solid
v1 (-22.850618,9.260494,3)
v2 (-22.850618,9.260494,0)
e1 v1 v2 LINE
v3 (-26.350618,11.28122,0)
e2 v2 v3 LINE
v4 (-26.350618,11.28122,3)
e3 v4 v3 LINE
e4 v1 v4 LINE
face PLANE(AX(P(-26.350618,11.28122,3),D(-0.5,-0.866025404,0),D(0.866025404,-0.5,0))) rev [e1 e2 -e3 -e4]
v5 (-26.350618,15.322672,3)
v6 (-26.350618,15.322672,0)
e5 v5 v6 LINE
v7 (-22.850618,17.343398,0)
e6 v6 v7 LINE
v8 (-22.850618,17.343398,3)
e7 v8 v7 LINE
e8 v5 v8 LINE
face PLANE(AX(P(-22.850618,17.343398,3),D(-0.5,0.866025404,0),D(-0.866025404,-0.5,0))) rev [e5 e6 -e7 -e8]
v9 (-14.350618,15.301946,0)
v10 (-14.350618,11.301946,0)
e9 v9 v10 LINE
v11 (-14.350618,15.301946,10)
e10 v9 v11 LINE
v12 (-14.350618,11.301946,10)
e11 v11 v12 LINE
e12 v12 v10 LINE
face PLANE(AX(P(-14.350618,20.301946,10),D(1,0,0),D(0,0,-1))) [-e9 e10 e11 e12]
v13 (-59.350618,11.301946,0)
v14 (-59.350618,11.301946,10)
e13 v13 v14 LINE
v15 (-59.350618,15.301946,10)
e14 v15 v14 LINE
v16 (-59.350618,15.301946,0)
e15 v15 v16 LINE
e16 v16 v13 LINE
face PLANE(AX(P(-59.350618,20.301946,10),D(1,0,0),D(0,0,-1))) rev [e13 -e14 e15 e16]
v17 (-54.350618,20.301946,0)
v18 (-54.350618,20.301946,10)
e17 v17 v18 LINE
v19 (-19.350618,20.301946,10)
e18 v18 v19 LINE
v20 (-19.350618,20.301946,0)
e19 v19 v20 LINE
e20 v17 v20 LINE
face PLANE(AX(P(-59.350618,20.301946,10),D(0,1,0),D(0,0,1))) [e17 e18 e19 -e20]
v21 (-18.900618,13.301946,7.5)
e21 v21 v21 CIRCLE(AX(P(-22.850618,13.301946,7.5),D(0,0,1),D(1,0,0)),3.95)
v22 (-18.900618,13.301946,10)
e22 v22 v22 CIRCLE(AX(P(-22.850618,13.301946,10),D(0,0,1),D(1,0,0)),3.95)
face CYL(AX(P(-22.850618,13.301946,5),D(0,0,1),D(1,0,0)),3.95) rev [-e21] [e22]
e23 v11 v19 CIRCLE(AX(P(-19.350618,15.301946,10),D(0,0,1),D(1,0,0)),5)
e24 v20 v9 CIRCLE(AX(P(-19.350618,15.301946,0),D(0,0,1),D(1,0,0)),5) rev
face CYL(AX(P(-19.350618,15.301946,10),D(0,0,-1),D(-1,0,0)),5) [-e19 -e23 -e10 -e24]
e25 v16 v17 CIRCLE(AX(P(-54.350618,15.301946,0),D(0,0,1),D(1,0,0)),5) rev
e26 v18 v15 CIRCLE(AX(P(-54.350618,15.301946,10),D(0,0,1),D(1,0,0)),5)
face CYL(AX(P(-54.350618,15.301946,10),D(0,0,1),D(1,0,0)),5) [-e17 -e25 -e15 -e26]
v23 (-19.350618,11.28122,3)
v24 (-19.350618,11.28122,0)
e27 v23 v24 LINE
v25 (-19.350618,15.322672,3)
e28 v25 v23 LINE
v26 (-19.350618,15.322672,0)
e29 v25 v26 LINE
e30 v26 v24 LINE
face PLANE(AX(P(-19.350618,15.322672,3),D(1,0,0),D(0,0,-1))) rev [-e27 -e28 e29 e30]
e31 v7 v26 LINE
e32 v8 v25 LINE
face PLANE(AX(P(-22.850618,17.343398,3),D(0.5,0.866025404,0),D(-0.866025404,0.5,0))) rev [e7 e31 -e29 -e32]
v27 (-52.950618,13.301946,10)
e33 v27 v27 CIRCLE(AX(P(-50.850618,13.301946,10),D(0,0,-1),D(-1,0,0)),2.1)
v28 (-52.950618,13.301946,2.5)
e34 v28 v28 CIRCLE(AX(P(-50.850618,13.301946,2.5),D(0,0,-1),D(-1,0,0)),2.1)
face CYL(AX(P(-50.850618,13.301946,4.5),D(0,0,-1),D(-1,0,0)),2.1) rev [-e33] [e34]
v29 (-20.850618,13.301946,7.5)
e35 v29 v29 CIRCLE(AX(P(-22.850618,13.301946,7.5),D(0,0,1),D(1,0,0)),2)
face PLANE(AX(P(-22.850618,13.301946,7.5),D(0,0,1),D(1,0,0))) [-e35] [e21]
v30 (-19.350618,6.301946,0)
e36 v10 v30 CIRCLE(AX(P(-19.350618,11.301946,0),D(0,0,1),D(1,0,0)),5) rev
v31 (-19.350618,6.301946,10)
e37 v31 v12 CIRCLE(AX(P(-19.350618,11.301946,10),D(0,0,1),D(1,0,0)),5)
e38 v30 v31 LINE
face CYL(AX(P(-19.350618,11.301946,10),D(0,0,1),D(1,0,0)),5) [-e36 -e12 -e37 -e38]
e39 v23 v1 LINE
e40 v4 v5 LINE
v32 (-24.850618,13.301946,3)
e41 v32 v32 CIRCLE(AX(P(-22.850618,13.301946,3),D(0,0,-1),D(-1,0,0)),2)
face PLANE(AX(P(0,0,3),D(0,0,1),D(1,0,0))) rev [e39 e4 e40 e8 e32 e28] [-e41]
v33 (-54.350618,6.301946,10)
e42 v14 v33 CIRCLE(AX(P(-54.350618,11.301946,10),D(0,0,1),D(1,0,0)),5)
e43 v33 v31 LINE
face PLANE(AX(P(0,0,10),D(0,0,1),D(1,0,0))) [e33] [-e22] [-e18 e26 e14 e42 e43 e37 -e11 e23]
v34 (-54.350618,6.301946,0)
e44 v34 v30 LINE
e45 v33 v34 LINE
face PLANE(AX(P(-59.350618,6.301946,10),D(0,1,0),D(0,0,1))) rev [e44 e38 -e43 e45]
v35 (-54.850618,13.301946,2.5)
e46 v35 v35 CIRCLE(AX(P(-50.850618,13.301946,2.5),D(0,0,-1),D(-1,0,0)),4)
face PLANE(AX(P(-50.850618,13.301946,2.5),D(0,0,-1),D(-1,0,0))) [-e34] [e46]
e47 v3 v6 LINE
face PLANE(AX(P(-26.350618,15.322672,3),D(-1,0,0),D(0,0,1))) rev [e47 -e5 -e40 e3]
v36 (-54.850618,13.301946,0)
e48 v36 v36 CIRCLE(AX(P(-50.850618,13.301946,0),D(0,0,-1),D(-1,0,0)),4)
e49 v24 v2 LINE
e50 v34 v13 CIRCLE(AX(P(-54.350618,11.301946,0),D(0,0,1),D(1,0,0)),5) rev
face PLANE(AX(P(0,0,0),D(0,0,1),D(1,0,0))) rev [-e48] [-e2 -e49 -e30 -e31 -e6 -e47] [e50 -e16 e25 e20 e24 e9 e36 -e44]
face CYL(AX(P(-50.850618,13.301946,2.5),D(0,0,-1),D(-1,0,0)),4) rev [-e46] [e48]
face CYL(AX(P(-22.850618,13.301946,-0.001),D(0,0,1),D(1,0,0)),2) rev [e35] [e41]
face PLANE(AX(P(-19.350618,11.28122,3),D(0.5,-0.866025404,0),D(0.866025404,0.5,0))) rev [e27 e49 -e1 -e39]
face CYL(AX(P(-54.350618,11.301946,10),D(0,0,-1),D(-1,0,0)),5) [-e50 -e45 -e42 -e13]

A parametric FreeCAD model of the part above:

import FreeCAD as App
import Part
import Sketcher

V = App.Vector
Q = App.Units.Quantity


def edges_at(feature, points):
    """Names of the edges that pass closest to the given points."""
    edges = feature.Shape.Edges
    near = lambda p: min(range(len(edges)), key=lambda i: edges[i].distToShape(Part.Vertex(*p))[0])
    return sorted({f"Edge{near(p) + 1}" for p in points})

doc = App.newDocument("Part")
body = doc.addObject("PartDesign::Body", "Body")

sketch1 = body.newObject("Sketcher::SketchObject", "Sketch")
sketch1.AttachmentSupport = (doc.getObject("XY_Plane"), [""])
sketch1.MapMode = "FlatFace"
sketch1.addGeometry(Part.LineSegment(V(-59, 20, 0), V(-59, 6, 0)), False)
sketch1.addGeometry(Part.LineSegment(V(-59, 6, 0), V(-14, 6, 0)), False)
sketch1.addGeometry(Part.LineSegment(V(-14, 6, 0), V(-14, 20, 0)), False)
sketch1.addGeometry(Part.LineSegment(V(-14, 20, 0), V(-59, 20, 0)), False)
sketch1.addConstraint(Sketcher.Constraint("Coincident", 0, 2, 1, 1))
sketch1.addConstraint(Sketcher.Constraint("Coincident", 1, 2, 2, 1))
sketch1.addConstraint(Sketcher.Constraint("Coincident", 2, 2, 3, 1))
sketch1.addConstraint(Sketcher.Constraint("Coincident", 3, 2, 0, 1))
sketch1.addConstraint(Sketcher.Constraint("Vertical", 0))
sketch1.addConstraint(Sketcher.Constraint("Horizontal", 1))
sketch1.addConstraint(Sketcher.Constraint("Vertical", 2))
sketch1.addConstraint(Sketcher.Constraint("Horizontal", 3))
sketch1.addConstraint(Sketcher.Constraint("DistanceX", 1, 1, 1, 2, 45.0))
sketch1.addConstraint(Sketcher.Constraint("DistanceY", 0, 2, 0, 1, 14.0))
sketch1.addConstraint(Sketcher.Constraint("DistanceX", 0, 2, -1, 1, 59.350618))
sketch1.addConstraint(Sketcher.Constraint("DistanceY", -1, 1, 0, 2, 6.301946))
pad1 = body.newObject("PartDesign::Pad", "Pad")
pad1.Profile = sketch1
pad1.Length = 10
doc.recompute()

fillet = body.newObject("PartDesign::Fillet", "Fillet")
fillet.Base = (pad1, edges_at(pad1, [(-59.351, 20.302, 5)]))
fillet.Radius = 5
doc.recompute()

fillet2 = body.newObject("PartDesign::Fillet", "Fillet001")
fillet2.Base = (fillet, edges_at(fillet, [(-14.351, 20.302, 5), (-14.351, 6.302, 5), (-59.351, 6.302, 5)]))
fillet2.Radius = 5

sketch2 = body.newObject("Sketcher::SketchObject", "Sketch001")
sketch2.AttachmentSupport = (doc.getObject("XY_Plane"), [""])
sketch2.MapMode = "FlatFace"
sketch2.addGeometry(Part.Circle(V(-50.9, 13.3, 0), V(0, 0, 1), 4), False)
sketch2.addConstraint(Sketcher.Constraint("Diameter", 0, 8.0))
sketch2.addConstraint(Sketcher.Constraint("DistanceX", 0, 3, -1, 1, 50.850618))
sketch2.addConstraint(Sketcher.Constraint("DistanceY", -1, 1, 0, 3, 13.301946))
pocket1 = body.newObject("PartDesign::Pocket", "Pocket")
pocket1.Profile = sketch2
pocket1.Length = 2.5
pocket1.Reversed = True

sketch3 = body.newObject("Sketcher::SketchObject", "Sketch002")
sketch3.AttachmentSupport = (doc.getObject("XY_Plane"), [""])
sketch3.MapMode = "FlatFace"
sketch3.AttachmentOffset = App.Placement(V(0, 0, 2.5), App.Rotation())
sketch3.addGeometry(Part.Circle(V(-50.9, 13.3, 0), V(0, 0, 1), 2.1), False)
sketch3.addConstraint(Sketcher.Constraint("Diameter", 0, 4.2))
sketch3.addConstraint(Sketcher.Constraint("DistanceX", 0, 3, -1, 1, 50.850618))
sketch3.addConstraint(Sketcher.Constraint("DistanceY", -1, 1, 0, 3, 13.301946))
pocket2 = body.newObject("PartDesign::Pocket", "Pocket001")
pocket2.Profile = sketch3
pocket2.Length = 2
pocket2.Reversed = True

sketch4 = body.newObject("Sketcher::SketchObject", "Sketch003")
sketch4.AttachmentSupport = (doc.getObject("XY_Plane"), [""])
sketch4.MapMode = "FlatFace"
sketch4.AttachmentOffset = App.Placement(V(0, 0, 10), App.Rotation())
sketch4.addGeometry(Part.Circle(V(-22.9, 13.3, 0), V(0, 0, 1), 4), False)
sketch4.addConstraint(Sketcher.Constraint("Diameter", 0, 7.9))
sketch4.addConstraint(Sketcher.Constraint("DistanceX", 0, 3, -1, 1, 22.850618))
sketch4.addConstraint(Sketcher.Constraint("DistanceY", -1, 1, 0, 3, 13.301946))
pocket3 = body.newObject("PartDesign::Pocket", "Pocket002")
pocket3.Profile = sketch4
pocket3.Length = 5

sketch5 = body.newObject("Sketcher::SketchObject", "Sketch004")
sketch5.AttachmentSupport = (doc.getObject("XY_Plane"), [""])
sketch5.MapMode = "FlatFace"
sketch5.AttachmentOffset = App.Placement(V(0, 0, 5), App.Rotation())
sketch5.addGeometry(Part.Circle(V(-22.9, 13.3, 0), V(0, 0, 1), 2), False)
sketch5.addConstraint(Sketcher.Constraint("Diameter", 0, 4.0))
sketch5.addConstraint(Sketcher.Constraint("DistanceX", 0, 3, -1, 1, 22.850618))
sketch5.addConstraint(Sketcher.Constraint("DistanceY", -1, 1, 0, 3, 13.301946))
pocket4 = body.newObject("PartDesign::Pocket", "Pocket003")
pocket4.Profile = sketch5
pocket4.Type = "UpToFirst"

sketch6 = body.newObject("Sketcher::SketchObject", "Sketch005")
sketch6.AttachmentSupport = (doc.getObject("XY_Plane"), [""])
sketch6.MapMode = "FlatFace"
sketch6.AttachmentOffset = App.Placement(V(0, 0, 4.5), App.Rotation())
sketch6.addGeometry(Part.Circle(V(-50.9, 13.3, 0), V(0, 0, 1), 2.1), False)
sketch6.addConstraint(Sketcher.Constraint("Diameter", 0, 4.2))
sketch6.addConstraint(Sketcher.Constraint("DistanceX", 0, 3, -1, 1, 50.850618))
sketch6.addConstraint(Sketcher.Constraint("DistanceY", -1, 1, 0, 3, 13.301946))
pocket5 = body.newObject("PartDesign::Pocket", "Pocket004")
pocket5.Profile = sketch6
pocket5.Type = "ThroughAll"
pocket5.Reversed = True

sketch7 = body.newObject("Sketcher::SketchObject", "Sketch006")
sketch7.AttachmentSupport = (doc.getObject("XY_Plane"), [""])
sketch7.MapMode = "FlatFace"
sketch7.AttachmentOffset = App.Placement(V(0, 0, 7.5), App.Rotation())
sketch7.addGeometry(Part.Circle(V(-22.9, 13.3, 0), V(0, 0, 1), 4), False)
sketch7.addGeometry(Part.Circle(V(-22.9, 13.3, 0), V(0, 0, 1), 2), False)
sketch7.addConstraint(Sketcher.Constraint("Coincident", 1, 3, 0, 3))
sketch7.addConstraint(Sketcher.Constraint("Diameter", 1, 4.0))
sketch7.addConstraint(Sketcher.Constraint("Diameter", 0, 7.9))
sketch7.addConstraint(Sketcher.Constraint("DistanceX", 0, 3, -1, 1, 22.850618))
sketch7.addConstraint(Sketcher.Constraint("DistanceY", -1, 1, 0, 3, 13.301946))
pad2 = body.newObject("PartDesign::Pad", "Pad001")
pad2.Profile = sketch7
pad2.Length = 2.5
pad2.Reversed = True

sketch8 = body.newObject("Sketcher::SketchObject", "Sketch007")
sketch8.AttachmentSupport = (doc.getObject("XY_Plane"), [""])
sketch8.MapMode = "FlatFace"
sketch8.AttachmentOffset = App.Placement(V(0, 0, 3), App.Rotation())
sketch8.addGeometry(Part.LineSegment(V(-22.9, 17.3, 0), V(-19.4, 15.3, 0)), False)
sketch8.addGeometry(Part.LineSegment(V(-19.4, 15.3, 0), V(-19.4, 11.3, 0)), False)
sketch8.addGeometry(Part.LineSegment(V(-19.4, 11.3, 0), V(-22.9, 9.3, 0)), False)
sketch8.addGeometry(Part.LineSegment(V(-22.9, 9.3, 0), V(-26.4, 11.3, 0)), False)
sketch8.addGeometry(Part.LineSegment(V(-26.4, 11.3, 0), V(-26.4, 15.3, 0)), False)
sketch8.addGeometry(Part.LineSegment(V(-26.4, 15.3, 0), V(-22.9, 17.3, 0)), False)
sketch8.addGeometry(Part.Circle(V(-22.9, 13.3, 0), V(0, 0, 1), 2), False)
sketch8.addConstraint(Sketcher.Constraint("Coincident", 0, 2, 1, 1))
sketch8.addConstraint(Sketcher.Constraint("Coincident", 1, 2, 2, 1))
sketch8.addConstraint(Sketcher.Constraint("Coincident", 2, 2, 3, 1))
sketch8.addConstraint(Sketcher.Constraint("Coincident", 3, 2, 4, 1))
sketch8.addConstraint(Sketcher.Constraint("Coincident", 4, 2, 5, 1))
sketch8.addConstraint(Sketcher.Constraint("Coincident", 5, 2, 0, 1))
sketch8.addConstraint(Sketcher.Constraint("Vertical", 1))
sketch8.addConstraint(Sketcher.Constraint("Vertical", 4))
sketch8.addConstraint(Sketcher.Constraint("Parallel", 0, 3))
sketch8.addConstraint(Sketcher.Constraint("Parallel", 2, 5))
sketch8.addConstraint(Sketcher.Constraint("Horizontal", 1, 2, 3, 2))
sketch8.addConstraint(Sketcher.Constraint("Horizontal", 0, 2, 4, 2))
sketch8.addConstraint(Sketcher.Constraint("Vertical", 6, 3, 2, 2))
sketch8.addConstraint(Sketcher.Constraint("Vertical", 2, 2, 5, 2))
sketch8.addConstraint(Sketcher.Constraint("Diameter", 6, 4.0))
sketch8.addConstraint(Sketcher.Constraint("Angle", 0, Q("-30 deg")))
sketch8.addConstraint(Sketcher.Constraint("DistanceX", 3, 2, 1, 2, 7.0))
sketch8.addConstraint(Sketcher.Constraint("DistanceY", 1, 2, 1, 1, 4.041452))
sketch8.addConstraint(Sketcher.Constraint("DistanceX", 6, 3, -1, 1, 22.850618))
sketch8.addConstraint(Sketcher.Constraint("DistanceY", -1, 1, 0, 2, 15.322672))
sketch8.addConstraint(Sketcher.Constraint("DistanceY", 2, 2, 6, 3, 4.041452))
pocket6 = body.newObject("PartDesign::Pocket", "Pocket005")
pocket6.Profile = sketch8
pocket6.Length = 3

doc.recompute()
